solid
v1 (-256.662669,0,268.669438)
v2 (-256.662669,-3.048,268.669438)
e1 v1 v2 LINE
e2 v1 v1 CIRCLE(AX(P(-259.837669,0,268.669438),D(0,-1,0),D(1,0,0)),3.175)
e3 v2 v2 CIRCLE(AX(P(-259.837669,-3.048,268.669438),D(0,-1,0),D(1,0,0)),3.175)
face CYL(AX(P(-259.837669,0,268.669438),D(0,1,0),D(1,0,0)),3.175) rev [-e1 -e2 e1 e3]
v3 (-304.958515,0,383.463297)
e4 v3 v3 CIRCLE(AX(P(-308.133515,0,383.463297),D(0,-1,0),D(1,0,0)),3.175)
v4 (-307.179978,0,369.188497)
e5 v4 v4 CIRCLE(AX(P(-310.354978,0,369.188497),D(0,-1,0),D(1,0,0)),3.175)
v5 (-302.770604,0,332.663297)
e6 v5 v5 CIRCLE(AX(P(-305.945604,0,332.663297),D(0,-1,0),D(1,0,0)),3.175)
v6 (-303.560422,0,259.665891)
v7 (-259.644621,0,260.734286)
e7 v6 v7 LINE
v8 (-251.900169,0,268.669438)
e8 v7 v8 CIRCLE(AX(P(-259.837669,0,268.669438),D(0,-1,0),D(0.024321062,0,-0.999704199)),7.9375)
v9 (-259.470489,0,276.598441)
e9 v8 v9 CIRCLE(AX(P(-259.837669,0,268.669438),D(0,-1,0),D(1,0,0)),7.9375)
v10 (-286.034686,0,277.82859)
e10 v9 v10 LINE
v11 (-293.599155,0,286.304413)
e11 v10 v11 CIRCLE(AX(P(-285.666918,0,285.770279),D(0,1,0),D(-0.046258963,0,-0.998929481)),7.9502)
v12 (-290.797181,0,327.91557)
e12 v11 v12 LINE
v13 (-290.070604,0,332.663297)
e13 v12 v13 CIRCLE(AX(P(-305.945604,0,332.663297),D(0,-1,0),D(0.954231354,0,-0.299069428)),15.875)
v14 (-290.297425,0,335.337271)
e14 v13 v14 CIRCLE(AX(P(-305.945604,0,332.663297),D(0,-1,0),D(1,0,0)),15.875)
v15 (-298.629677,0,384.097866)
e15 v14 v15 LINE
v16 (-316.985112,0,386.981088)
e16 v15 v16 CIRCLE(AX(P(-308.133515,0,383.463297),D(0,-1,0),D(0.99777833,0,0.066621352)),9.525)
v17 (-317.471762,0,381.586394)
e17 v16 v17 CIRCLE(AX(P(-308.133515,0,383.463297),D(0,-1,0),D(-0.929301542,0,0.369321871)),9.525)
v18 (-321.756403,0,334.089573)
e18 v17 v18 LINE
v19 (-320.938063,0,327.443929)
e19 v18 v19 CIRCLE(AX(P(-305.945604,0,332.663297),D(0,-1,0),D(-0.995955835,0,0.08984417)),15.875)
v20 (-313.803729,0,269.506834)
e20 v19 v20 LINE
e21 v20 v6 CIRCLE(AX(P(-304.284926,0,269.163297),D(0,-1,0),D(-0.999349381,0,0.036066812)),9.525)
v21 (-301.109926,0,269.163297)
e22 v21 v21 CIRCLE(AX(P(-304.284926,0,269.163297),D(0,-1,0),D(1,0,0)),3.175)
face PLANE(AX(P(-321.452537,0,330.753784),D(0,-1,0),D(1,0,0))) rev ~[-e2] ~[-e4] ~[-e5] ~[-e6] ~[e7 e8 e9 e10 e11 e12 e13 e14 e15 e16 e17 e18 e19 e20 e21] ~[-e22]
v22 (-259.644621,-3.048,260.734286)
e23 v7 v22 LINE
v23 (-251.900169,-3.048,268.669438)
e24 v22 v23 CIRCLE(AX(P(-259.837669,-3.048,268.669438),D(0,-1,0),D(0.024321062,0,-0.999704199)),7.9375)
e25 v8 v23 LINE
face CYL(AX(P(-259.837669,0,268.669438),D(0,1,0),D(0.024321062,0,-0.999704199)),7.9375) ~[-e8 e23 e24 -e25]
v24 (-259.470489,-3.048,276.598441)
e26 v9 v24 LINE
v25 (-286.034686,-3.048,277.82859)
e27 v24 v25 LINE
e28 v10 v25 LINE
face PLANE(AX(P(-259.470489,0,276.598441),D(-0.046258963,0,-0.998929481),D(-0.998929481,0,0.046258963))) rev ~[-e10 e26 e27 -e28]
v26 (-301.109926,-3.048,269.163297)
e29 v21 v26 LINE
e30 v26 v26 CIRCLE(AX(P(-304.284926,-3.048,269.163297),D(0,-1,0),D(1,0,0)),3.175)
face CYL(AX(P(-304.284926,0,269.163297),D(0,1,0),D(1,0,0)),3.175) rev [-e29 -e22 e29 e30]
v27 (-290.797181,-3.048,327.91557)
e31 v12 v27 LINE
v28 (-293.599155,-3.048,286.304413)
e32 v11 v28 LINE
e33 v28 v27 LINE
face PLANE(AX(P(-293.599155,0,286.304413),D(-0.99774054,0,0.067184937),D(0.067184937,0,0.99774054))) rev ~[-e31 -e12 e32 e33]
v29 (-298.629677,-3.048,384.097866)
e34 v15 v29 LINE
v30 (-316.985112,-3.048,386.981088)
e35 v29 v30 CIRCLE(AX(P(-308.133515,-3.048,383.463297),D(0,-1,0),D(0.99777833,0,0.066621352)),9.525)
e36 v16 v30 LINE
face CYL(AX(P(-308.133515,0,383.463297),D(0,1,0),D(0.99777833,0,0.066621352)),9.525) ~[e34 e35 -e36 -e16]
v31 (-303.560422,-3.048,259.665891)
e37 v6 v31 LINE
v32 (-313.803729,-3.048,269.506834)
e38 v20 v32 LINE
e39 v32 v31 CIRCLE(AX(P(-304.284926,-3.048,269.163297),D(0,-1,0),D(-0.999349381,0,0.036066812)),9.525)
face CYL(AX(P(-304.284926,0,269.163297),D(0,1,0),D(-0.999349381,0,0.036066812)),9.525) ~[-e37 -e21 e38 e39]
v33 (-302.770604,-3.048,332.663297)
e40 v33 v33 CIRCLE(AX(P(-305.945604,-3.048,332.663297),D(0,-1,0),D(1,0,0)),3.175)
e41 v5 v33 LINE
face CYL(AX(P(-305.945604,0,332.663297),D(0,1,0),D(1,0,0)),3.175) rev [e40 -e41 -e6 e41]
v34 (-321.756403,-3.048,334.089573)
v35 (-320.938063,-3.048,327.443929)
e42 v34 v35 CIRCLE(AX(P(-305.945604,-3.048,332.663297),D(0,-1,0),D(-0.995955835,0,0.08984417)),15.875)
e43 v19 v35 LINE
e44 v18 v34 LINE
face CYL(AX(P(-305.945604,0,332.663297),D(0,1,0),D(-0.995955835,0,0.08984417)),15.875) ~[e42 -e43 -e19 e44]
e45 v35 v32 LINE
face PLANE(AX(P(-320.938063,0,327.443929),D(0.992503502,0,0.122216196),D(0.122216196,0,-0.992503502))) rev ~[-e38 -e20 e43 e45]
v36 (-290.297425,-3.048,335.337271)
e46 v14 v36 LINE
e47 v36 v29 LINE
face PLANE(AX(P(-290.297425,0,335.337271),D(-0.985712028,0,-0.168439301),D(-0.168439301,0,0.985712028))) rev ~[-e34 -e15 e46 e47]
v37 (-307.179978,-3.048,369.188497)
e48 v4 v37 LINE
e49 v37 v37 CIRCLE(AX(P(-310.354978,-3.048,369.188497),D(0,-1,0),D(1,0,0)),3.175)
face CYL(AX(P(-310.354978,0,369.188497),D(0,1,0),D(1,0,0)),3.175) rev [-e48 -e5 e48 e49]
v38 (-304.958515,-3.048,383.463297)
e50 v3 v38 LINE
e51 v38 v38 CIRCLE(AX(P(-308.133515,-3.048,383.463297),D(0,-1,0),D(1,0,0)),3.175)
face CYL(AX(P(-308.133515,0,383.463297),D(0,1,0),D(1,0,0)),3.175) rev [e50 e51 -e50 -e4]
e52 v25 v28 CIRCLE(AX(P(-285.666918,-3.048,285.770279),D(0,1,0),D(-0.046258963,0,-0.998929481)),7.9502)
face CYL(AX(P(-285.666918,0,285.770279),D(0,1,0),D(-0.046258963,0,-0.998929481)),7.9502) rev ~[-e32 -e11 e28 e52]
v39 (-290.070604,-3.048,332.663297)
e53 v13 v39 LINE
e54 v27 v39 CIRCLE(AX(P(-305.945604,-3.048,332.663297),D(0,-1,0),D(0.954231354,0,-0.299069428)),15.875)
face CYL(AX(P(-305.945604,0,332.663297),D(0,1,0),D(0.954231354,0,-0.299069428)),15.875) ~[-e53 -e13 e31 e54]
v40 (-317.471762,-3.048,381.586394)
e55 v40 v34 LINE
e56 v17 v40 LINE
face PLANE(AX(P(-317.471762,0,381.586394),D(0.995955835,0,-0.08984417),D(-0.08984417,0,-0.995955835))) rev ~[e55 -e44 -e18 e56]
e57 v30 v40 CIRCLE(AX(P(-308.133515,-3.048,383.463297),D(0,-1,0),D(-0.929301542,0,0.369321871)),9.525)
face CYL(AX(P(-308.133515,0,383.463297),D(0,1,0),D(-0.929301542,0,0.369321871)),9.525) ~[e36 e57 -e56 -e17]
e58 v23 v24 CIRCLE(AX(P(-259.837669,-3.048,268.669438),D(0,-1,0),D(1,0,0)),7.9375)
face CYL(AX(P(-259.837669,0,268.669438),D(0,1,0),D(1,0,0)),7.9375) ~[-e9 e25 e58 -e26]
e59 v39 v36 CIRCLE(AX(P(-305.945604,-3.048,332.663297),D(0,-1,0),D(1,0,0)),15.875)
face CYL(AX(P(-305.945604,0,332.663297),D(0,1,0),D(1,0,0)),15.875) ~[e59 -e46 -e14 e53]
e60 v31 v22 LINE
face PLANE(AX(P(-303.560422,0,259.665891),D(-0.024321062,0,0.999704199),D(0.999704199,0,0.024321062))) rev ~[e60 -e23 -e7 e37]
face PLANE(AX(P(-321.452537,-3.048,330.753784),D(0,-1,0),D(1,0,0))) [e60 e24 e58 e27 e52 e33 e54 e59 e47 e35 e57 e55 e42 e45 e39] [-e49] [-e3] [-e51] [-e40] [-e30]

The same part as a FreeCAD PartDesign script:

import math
import FreeCAD as App
import Part
import Sketcher
from FreeCAD import Vector
Q = App.Units.Quantity

doc = App.newDocument("Part")
params = doc.addObject("Spreadsheet::Sheet", "Params")
for row, (alias, value) in enumerate([
    ("sketch1_diameter", "0.25 in"),
    ("sketch1_radius", "0.625 in"),
    ("sketch1_radius2", "0.375 in"),
    ("sketch1_radius3", "0.3125 in"),
    ("sketch1_radius4", "0.313 in"),
    ("pad1_length", "0.12 in"),
], start=1):
    params.set(f"A{row}", alias)
    params.set(f"B{row}", "=" + value)
    params.setAlias(f"B{row}", alias)

body = doc.addObject("PartDesign::Body", "Body")

sketch1 = body.newObject("Sketcher::SketchObject", "Sketch")
sketch1.AttachmentSupport = (doc.getObject("XZ_Plane"), [""])
sketch1.MapMode = "FlatFace"
sketch1.addGeometry(Part.ArcOfCircle(Part.Circle(Vector(-305.945604, 332.663297, 0), Vector(0, 0, 1), 15.875), math.radians(174.845358), math.radians(199.194688)), False)
sketch1.addGeometry(Part.LineSegment(Vector(-320.938063, 327.443929, 0), Vector(-313.803729, 269.506834, 0)), False)
sketch1.addGeometry(Part.ArcOfCircle(Part.Circle(Vector(-304.284926, 269.163297, 0), Vector(0, 0, 1), 9.525), math.radians(177.933076), math.radians(274.362323)), False)
sketch1.addGeometry(Part.LineSegment(Vector(-303.560422, 259.665891, 0), Vector(-259.644621, 260.734286, 0)), False)
sketch1.addGeometry(Part.ArcOfCircle(Part.Circle(Vector(-259.837669, 268.669438, 0), Vector(0, 0, 1), 7.9375), math.radians(-88.606368), math.radians(0)), False)
sketch1.addGeometry(Part.ArcOfCircle(Part.Circle(Vector(-259.837669, 268.669438, 0), Vector(0, 0, 1), 7.9375), math.radians(0), math.radians(87.34861)), False)
sketch1.addGeometry(Part.LineSegment(Vector(-259.470489, 276.598441, 0), Vector(-286.034686, 277.82859, 0)), False)
sketch1.addGeometry(Part.ArcOfCircle(Part.Circle(Vector(-285.666918, 285.770279, 0), Vector(0, 0, 1), 7.9502), math.radians(176.147685), math.radians(267.34861)), False)
sketch1.addGeometry(Part.LineSegment(Vector(-293.599155, 286.304413, 0), Vector(-290.797181, 327.91557, 0)), False)
sketch1.addGeometry(Part.ArcOfCircle(Part.Circle(Vector(-305.945604, 332.663297, 0), Vector(0, 0, 1), 15.875), math.radians(-17.401719), math.radians(0)), False)
sketch1.addGeometry(Part.ArcOfCircle(Part.Circle(Vector(-305.945604, 332.663297, 0), Vector(0, 0, 1), 15.875), math.radians(0), math.radians(9.697089)), False)
sketch1.addGeometry(Part.LineSegment(Vector(-290.297425, 335.337271, 0), Vector(-298.629677, 384.097866, 0)), False)
sketch1.addGeometry(Part.ArcOfCircle(Part.Circle(Vector(-308.133515, 383.463297, 0), Vector(0, 0, 1), 9.525), math.radians(3.819952), math.radians(158.326199)), False)
sketch1.addGeometry(Part.ArcOfCircle(Part.Circle(Vector(-308.133515, 383.463297, 0), Vector(0, 0, 1), 9.525), math.radians(158.326199), math.radians(191.364517)), False)
sketch1.addGeometry(Part.LineSegment(Vector(-317.471762, 381.586394, 0), Vector(-321.756403, 334.089573, 0)), False)
sketch1.addGeometry(Part.Circle(Vector(-304.284926, 269.163297, 0), Vector(0, 0, 1), 3.175), False)
sketch1.addGeometry(Part.Circle(Vector(-259.837669, 268.669438, 0), Vector(0, 0, 1), 3.175), False)
sketch1.addGeometry(Part.Circle(Vector(-305.945604, 332.663297, 0), Vector(0, 0, 1), 3.175), False)
sketch1.addGeometry(Part.Circle(Vector(-310.354978, 369.188497, 0), Vector(0, 0, 1), 3.175), False)
sketch1.addGeometry(Part.Circle(Vector(-308.133515, 383.463297, 0), Vector(0, 0, 1), 3.175), False)
sketch1.addConstraint(Sketcher.Constraint("Coincident", 0, 2, 1, 1))
sketch1.addConstraint(Sketcher.Constraint("Coincident", 1, 2, 2, 1))
sketch1.addConstraint(Sketcher.Constraint("Coincident", 2, 2, 3, 1))
sketch1.addConstraint(Sketcher.Constraint("Tangent", 3, 2, 4, 1))
sketch1.addConstraint(Sketcher.Constraint("Tangent", 4, 2, 5, 1))
sketch1.addConstraint(Sketcher.Constraint("Tangent", 5, 2, 6, 1))
sketch1.addConstraint(Sketcher.Constraint("Tangent", 6, 2, 7, 2))
sketch1.addConstraint(Sketcher.Constraint("Tangent", 7, 1, 8, 1))
sketch1.addConstraint(Sketcher.Constraint("Coincident", 8, 2, 9, 1))
sketch1.addConstraint(Sketcher.Constraint("Tangent", 9, 2, 10, 1))
sketch1.addConstraint(Sketcher.Constraint("Tangent", 10, 2, 11, 1))
sketch1.addConstraint(Sketcher.Constraint("Coincident", 11, 2, 12, 1))
sketch1.addConstraint(Sketcher.Constraint("Tangent", 12, 2, 13, 1))
sketch1.addConstraint(Sketcher.Constraint("Coincident", 13, 2, 14, 1))
sketch1.addConstraint(Sketcher.Constraint("Tangent", 14, 2, 0, 1))
sketch1.addConstraint(Sketcher.Constraint("Coincident", 9, 3, 0, 3))
sketch1.addConstraint(Sketcher.Constraint("Coincident", 15, 3, 2, 3))
sketch1.addConstraint(Sketcher.Constraint("Coincident", 16, 3, 4, 3))
sketch1.addConstraint(Sketcher.Constraint("Coincident", 17, 3, 0, 3))
sketch1.addConstraint(Sketcher.Constraint("Coincident", 19, 3, 12, 3))
sketch1.addConstraint(Sketcher.Constraint("Equal", 4, 5))
sketch1.addConstraint(Sketcher.Constraint("Equal", 0, 9))
sketch1.addConstraint(Sketcher.Constraint("Equal", 9, 10))
sketch1.addConstraint(Sketcher.Constraint("Equal", 2, 12))
sketch1.addConstraint(Sketcher.Constraint("Equal", 12, 13))
sketch1.addConstraint(Sketcher.Constraint("Equal", 15, 16))
sketch1.addConstraint(Sketcher.Constraint("Equal", 16, 17))
sketch1.addConstraint(Sketcher.Constraint("Equal", 17, 18))
sketch1.addConstraint(Sketcher.Constraint("Equal", 18, 19))
sketch1.addConstraint(Sketcher.Constraint("Horizontal", 16, 3, 4, 2))
sketch1.addConstraint(Sketcher.Constraint("Horizontal", 17, 3, 9, 2))
sketch1.addConstraint(Sketcher.Constraint("Diameter", 15, Q("0.25 in")))
sketch1.addConstraint(Sketcher.Constraint("Radius", 0, Q("0.625 in")))
sketch1.addConstraint(Sketcher.Constraint("Radius", 2, Q("0.375 in")))
sketch1.addConstraint(Sketcher.Constraint("Radius", 4, Q("0.3125 in")))
sketch1.addConstraint(Sketcher.Constraint("Radius", 7, Q("0.313 in")))
sketch1.addConstraint(Sketcher.Constraint("DistanceY", 0, 3, 12, 3, Q("2 in")))
sketch1.addConstraint(Sketcher.Constraint("DistanceY", 2, 3, 0, 3, Q("2.5 in")))
sketch1.addConstraint(Sketcher.Constraint("DistanceY", 18, 3, 13, 3, Q("0.562 in")))
sketch1.addConstraint(Sketcher.Constraint("DistanceX", 18, 3, -1, 1, Q("12.2186999 in")))
sketch1.addConstraint(Sketcher.Constraint("DistanceX", 7, 3, 3, 2, Q("1.0244999 in")))
sketch1.addConstraint(Sketcher.Constraint("Distance", 1, 58.374701))
sketch1.addConstraint(Sketcher.Constraint("DistanceX", 2, 2, 3, 2, 43.915801))
sketch1.addConstraint(Sketcher.Constraint("DistanceY", 2, 2, 6, 2, 18.162699))
sketch1.addConstraint(Sketcher.Constraint("DistanceY", 8, 2, 10, 2, 7.421701))
sketch1.addConstraint(Sketcher.Constraint("DistanceX", 18, 3, 11, 2, 11.725301))
sketch1.addConstraint(Sketcher.Constraint("DistanceX", 14, 2, 17, 3, 15.810799))
sketch1.addConstraint(Sketcher.Constraint("Distance", 8, 41.705389))
sketch1.addConstraint(Sketcher.Constraint("DistanceX", 4, 3, -1, 1, 259.837669))
sketch1.addConstraint(Sketcher.Constraint("DistanceY", -1, 1, 4, 3, 268.669438))
sketch1.addConstraint(Sketcher.Constraint("DistanceX", 7, 3, -1, 1, 285.666918))
sketch1.addConstraint(Sketcher.Constraint("DistanceY", -1, 1, 0, 2, 327.443929))
sketch1.addConstraint(Sketcher.Constraint("DistanceX", 1, 2, -1, 1, 313.803729))
sketch1.addConstraint(Sketcher.Constraint("DistanceX", 8, 2, -1, 1, 290.797181))
sketch1.addConstraint(Sketcher.Constraint("DistanceY", -1, 1, 12, 2, 386.981088))
sketch1.setExpression("Constraints[31]", "Params.sketch1_diameter")
sketch1.setExpression("Constraints[32]", "Params.sketch1_radius")
sketch1.setExpression("Constraints[33]", "Params.sketch1_radius2")
sketch1.setExpression("Constraints[34]", "Params.sketch1_radius3")
sketch1.setExpression("Constraints[35]", "Params.sketch1_radius4")
pad1 = body.newObject("PartDesign::Pad", "Pad")
pad1.Profile = sketch1
pad1.setExpression("Length", "Params.pad1_length")

doc.recompute()
